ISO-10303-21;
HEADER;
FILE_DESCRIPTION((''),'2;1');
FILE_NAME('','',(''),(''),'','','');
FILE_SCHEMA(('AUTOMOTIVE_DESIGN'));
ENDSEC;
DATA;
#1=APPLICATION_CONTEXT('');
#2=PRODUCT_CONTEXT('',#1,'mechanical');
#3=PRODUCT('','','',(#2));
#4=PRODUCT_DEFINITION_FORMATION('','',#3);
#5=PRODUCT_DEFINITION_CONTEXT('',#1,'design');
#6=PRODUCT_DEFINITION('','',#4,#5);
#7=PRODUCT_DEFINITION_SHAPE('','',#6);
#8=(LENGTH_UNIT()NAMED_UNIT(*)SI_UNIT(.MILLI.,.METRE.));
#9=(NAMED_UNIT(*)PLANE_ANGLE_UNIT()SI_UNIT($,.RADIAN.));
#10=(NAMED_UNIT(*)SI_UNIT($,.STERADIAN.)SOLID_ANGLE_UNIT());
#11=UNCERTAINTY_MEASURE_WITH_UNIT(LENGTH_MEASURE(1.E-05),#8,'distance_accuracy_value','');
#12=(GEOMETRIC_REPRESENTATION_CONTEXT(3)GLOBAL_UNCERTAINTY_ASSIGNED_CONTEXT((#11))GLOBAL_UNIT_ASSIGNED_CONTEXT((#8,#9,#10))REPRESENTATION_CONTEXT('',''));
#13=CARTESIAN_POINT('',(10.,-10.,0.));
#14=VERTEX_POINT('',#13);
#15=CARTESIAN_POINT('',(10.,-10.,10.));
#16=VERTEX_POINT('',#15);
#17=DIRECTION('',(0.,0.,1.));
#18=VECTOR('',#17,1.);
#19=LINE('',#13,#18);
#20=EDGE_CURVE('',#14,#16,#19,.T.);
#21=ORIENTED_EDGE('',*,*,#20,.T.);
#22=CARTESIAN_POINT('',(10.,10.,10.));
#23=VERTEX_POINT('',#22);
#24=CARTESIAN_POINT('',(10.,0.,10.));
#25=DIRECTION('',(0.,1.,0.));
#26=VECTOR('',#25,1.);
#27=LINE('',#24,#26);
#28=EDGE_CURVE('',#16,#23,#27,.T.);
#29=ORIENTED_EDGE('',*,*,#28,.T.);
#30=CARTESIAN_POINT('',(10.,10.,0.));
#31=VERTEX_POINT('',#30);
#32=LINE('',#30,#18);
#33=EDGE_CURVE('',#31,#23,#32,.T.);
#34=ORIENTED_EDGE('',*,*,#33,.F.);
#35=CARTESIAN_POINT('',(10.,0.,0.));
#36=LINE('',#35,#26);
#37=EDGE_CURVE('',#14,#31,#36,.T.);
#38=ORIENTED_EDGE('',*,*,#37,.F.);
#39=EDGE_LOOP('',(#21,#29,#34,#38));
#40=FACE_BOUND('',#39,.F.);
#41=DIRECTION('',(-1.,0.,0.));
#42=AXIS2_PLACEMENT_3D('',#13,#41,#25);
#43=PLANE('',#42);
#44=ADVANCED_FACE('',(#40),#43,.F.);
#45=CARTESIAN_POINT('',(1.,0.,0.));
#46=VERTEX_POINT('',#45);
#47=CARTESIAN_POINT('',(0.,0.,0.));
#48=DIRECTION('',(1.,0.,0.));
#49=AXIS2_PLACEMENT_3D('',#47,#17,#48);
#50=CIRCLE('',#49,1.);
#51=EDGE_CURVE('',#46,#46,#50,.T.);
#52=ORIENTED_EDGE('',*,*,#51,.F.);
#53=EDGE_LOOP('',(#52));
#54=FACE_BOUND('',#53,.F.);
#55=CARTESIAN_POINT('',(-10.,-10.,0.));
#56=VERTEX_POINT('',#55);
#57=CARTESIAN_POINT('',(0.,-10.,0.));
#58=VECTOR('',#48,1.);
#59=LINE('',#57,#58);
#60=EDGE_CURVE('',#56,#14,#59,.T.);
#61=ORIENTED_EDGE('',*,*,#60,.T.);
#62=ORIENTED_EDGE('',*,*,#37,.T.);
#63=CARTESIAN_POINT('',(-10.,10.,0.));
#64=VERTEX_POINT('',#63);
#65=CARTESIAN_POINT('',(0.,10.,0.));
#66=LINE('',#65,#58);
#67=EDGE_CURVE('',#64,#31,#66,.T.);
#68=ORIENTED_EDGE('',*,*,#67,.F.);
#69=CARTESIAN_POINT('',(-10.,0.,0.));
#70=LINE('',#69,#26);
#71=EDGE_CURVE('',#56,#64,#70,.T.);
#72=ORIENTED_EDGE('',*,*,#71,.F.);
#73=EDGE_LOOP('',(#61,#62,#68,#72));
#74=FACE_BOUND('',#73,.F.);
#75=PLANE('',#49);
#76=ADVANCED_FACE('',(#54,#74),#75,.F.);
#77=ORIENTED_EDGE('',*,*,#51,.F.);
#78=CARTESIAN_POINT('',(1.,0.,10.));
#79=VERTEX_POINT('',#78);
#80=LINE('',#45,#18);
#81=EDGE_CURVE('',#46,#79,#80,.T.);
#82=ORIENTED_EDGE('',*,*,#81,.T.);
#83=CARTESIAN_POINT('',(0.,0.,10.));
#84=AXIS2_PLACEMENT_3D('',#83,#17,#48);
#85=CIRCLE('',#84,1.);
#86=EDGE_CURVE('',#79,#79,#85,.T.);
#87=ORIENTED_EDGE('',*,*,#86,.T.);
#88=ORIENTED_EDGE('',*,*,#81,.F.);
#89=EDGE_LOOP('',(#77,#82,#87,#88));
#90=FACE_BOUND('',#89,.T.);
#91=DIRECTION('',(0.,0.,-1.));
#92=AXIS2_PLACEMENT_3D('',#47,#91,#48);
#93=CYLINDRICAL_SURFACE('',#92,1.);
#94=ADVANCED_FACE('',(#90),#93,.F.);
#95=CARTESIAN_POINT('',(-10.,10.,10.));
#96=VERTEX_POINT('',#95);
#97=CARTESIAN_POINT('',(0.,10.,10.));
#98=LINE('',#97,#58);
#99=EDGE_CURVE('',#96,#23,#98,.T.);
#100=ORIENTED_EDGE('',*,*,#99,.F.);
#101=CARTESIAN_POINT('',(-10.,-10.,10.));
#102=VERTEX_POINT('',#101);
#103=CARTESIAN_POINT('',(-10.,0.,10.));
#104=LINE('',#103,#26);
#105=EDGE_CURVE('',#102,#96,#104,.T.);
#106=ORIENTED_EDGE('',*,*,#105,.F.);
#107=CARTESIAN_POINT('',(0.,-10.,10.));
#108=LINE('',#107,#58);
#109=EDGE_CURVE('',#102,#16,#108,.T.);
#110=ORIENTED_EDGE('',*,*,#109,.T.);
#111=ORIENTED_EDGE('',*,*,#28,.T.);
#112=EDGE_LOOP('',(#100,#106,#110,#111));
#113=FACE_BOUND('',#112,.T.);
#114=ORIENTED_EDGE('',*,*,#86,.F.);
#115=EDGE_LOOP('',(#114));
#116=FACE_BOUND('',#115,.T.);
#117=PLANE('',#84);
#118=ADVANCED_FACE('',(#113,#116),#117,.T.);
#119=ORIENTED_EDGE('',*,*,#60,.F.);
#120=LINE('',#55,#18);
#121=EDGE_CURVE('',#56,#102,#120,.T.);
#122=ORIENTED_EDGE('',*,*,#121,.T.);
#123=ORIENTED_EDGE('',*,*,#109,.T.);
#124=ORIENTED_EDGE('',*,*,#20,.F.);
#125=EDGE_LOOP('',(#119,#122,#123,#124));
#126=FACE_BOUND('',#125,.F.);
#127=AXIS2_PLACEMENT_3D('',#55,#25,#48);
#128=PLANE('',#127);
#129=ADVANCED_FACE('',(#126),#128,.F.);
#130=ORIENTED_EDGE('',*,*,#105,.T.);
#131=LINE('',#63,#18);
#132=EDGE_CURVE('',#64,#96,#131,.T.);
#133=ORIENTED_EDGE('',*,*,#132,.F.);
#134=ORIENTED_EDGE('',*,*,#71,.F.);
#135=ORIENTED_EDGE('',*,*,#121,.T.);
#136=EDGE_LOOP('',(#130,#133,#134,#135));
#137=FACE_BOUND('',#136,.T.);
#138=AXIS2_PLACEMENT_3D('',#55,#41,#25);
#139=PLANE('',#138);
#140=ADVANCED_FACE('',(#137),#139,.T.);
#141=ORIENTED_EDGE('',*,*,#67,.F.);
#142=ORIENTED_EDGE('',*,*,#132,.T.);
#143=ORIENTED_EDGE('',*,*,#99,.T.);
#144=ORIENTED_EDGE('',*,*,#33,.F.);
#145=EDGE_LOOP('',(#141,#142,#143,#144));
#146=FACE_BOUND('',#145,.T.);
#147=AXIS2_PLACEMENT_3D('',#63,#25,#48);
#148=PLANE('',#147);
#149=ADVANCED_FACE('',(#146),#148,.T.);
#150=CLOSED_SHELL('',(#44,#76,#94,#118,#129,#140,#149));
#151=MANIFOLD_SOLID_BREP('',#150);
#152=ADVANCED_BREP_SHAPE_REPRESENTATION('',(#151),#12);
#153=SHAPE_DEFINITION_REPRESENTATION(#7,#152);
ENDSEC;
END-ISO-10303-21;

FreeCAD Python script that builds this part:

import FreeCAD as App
import Part
import Sketcher

V = App.Vector

doc = App.newDocument("Part")
params = doc.addObject("Spreadsheet::Sheet", "Params")
for row, (alias, value) in enumerate([
    ("sketch1_diameter", "2 mm"),
    ("sketch1_width", "20 mm"),
    ("pad1_length", "10 mm"),
], start=1):
    params.set(f"A{row}", alias)
    params.set(f"B{row}", "=" + value)
    params.setAlias(f"B{row}", alias)

body = doc.addObject("PartDesign::Body", "Body")

# Sketch on XY plane
sketch1 = body.newObject("Sketcher::SketchObject", "Sketch")
sketch1.AttachmentSupport = (doc.getObject("XY_Plane"), [""])
sketch1.MapMode = "FlatFace"
sketch1.addGeometry(Part.LineSegment(V(-10, 10, 0), V(-10, -10, 0)), False)
sketch1.addGeometry(Part.LineSegment(V(-10, -10, 0), V(10, -10, 0)), False)
sketch1.addGeometry(Part.LineSegment(V(10, -10, 0), V(10, 10, 0)), False)
sketch1.addGeometry(Part.LineSegment(V(10, 10, 0), V(-10, 10, 0)), False)
sketch1.addGeometry(Part.Circle(V(0, 0, 0), V(0, 0, 1), 1), False)
sketch1.addConstraint(Sketcher.Constraint("Coincident", 0, 2, 1, 1))
sketch1.addConstraint(Sketcher.Constraint("Coincident", 1, 2, 2, 1))
sketch1.addConstraint(Sketcher.Constraint("Coincident", 2, 2, 3, 1))
sketch1.addConstraint(Sketcher.Constraint("Coincident", 3, 2, 0, 1))
sketch1.addConstraint(Sketcher.Constraint("Vertical", 0))
sketch1.addConstraint(Sketcher.Constraint("Horizontal", 1))
sketch1.addConstraint(Sketcher.Constraint("Vertical", 2))
sketch1.addConstraint(Sketcher.Constraint("Horizontal", 3))
sketch1.addConstraint(Sketcher.Constraint("Coincident", 4, 3, -1, 1))
sketch1.addConstraint(Sketcher.Constraint("Symmetric", 0, 2, 2, 2, -1, 1))
sketch1.addConstraint(Sketcher.Constraint("Equal", 3, 0))
sketch1.addConstraint(Sketcher.Constraint("Diameter", 4, 2.0))
sketch1.addConstraint(Sketcher.Constraint("DistanceX", 1, 1, 1, 2, 20.0))
sketch1.setExpression("Constraints[11]", "Params.sketch1_diameter")
sketch1.setExpression("Constraints[12]", "Params.sketch1_width")
pad1 = body.newObject("PartDesign::Pad", "Pad")
pad1.Profile = sketch1
pad1.setExpression("Length", "Params.pad1_length")

doc.recompute()
